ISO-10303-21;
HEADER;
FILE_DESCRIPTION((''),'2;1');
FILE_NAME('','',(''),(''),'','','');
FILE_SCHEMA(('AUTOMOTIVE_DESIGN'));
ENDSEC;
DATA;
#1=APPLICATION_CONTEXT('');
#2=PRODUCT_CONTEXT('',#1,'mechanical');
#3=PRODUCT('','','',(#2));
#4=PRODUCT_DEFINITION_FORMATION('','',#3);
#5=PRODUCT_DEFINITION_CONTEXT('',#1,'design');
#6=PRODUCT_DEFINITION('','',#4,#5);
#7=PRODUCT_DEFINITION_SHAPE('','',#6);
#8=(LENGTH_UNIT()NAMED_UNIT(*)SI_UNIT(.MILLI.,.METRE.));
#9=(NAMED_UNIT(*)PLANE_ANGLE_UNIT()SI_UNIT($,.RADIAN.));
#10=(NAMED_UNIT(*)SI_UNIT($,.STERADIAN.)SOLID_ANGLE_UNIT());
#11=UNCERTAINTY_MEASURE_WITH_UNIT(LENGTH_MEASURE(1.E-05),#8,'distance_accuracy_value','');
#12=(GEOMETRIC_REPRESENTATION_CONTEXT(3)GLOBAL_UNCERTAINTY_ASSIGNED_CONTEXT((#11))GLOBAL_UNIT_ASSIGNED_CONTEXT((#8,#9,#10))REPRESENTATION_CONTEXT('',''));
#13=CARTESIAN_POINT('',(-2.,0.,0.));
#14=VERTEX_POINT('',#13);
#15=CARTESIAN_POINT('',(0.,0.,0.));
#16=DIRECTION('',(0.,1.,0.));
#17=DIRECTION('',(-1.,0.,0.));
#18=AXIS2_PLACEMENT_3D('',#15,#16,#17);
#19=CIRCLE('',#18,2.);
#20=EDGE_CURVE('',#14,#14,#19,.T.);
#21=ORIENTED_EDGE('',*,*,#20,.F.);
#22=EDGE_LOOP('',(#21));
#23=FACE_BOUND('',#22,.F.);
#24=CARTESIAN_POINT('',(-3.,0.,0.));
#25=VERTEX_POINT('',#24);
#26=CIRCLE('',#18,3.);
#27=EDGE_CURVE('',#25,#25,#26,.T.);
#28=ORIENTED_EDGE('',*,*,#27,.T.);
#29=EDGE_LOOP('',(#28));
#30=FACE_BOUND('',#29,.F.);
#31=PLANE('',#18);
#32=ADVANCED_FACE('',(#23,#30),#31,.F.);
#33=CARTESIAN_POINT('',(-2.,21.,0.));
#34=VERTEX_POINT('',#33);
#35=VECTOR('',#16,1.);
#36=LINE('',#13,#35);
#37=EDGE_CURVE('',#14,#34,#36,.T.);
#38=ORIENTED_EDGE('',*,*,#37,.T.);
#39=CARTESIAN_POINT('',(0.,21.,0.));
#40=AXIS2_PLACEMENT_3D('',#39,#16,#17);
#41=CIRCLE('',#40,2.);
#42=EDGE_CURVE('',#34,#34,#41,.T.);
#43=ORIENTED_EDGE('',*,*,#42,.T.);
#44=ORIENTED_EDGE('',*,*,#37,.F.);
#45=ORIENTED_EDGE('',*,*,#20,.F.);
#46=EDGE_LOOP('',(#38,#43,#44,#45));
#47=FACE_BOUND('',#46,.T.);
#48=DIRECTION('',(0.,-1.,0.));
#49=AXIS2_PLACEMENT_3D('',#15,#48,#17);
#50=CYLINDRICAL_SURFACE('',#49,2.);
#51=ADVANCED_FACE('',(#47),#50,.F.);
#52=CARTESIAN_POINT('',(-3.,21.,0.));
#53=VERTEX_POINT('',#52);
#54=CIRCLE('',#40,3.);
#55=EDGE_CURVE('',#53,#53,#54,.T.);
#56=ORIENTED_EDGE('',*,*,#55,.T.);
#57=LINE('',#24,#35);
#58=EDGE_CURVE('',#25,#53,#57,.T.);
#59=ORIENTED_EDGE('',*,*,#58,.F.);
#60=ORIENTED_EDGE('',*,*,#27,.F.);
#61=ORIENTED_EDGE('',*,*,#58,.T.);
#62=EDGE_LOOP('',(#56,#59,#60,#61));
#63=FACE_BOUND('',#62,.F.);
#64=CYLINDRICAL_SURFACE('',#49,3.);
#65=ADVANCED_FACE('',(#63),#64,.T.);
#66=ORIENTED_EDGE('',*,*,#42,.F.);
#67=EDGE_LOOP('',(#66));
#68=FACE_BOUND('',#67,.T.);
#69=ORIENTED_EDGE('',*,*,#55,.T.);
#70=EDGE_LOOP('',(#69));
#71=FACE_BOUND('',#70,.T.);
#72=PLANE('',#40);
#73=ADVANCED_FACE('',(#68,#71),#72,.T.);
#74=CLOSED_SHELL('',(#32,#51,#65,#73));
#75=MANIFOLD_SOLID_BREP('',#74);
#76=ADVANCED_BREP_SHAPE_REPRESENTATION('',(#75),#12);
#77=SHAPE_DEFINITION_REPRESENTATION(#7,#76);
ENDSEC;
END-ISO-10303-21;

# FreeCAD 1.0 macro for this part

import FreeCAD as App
import Part
import Sketcher
from FreeCAD import Vector
Q = App.Units.Quantity

doc = App.newDocument("Part")
body = doc.addObject("PartDesign::Body", "Body")

# Sketch on XZ plane
sketch1 = doc.addObject("Sketcher::SketchObject", "Sketch")
body.addObject(sketch1)
sketch1.AttachmentSupport = (doc.XZ_Plane, [""])
sketch1.MapMode = "FlatFace"
sketch1.addGeometry([
    Part.Circle(Vector(0, 0, 0), Vector(0, 0, 1), 3),
    Part.Circle(Vector(0, 0, 0), Vector(0, 0, 1), 2),
], False)
sketch1.addConstraint([
    Sketcher.Constraint("Coincident", 0, 3, -1, 1),
    Sketcher.Constraint("Coincident", 1, 3, -1, 1),
    Sketcher.Constraint("Diameter", 0, Q("6 mm")),
    Sketcher.Constraint("Diameter", 1, Q("4 mm")),
])
pad1 = doc.addObject("PartDesign::Pad", "Pad")
body.addObject(pad1)
pad1.Profile = sketch1
pad1.Length = 21
pad1.Reversed = True

doc.recompute()
